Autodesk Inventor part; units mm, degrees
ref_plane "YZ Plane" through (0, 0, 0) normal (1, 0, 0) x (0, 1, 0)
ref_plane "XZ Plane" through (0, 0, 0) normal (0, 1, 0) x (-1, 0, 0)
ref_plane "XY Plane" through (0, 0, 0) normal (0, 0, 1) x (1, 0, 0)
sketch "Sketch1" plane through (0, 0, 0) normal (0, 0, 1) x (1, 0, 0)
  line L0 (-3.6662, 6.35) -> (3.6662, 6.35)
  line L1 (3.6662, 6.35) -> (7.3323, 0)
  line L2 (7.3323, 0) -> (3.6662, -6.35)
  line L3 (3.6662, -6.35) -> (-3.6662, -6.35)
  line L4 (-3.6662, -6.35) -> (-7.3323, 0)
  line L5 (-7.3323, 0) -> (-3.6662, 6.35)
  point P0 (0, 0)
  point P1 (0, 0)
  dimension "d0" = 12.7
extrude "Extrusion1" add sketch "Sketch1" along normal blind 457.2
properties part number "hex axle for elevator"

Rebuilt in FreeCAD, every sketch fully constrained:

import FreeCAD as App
import Part
import Sketcher
Q = App.Units.Quantity

doc = App.newDocument("Part")
body = doc.addObject("PartDesign::Body", "Body")

# Sketch on XY plane
sketch1 = body.newObject("Sketcher::SketchObject", "Sketch")
sketch1.AttachmentSupport = (doc.getObject("XY_Plane"), [""])
sketch1.MapMode = "FlatFace"
sketch1.addGeometry(Part.LineSegment(App.Vector(4, 6, 0), App.Vector(-4, 6, 0)), False)
sketch1.addGeometry(Part.LineSegment(App.Vector(-4, 6, 0), App.Vector(-7, 0, 0)), False)
sketch1.addGeometry(Part.LineSegment(App.Vector(-7, 0, 0), App.Vector(-4, -6, 0)), False)
sketch1.addGeometry(Part.LineSegment(App.Vector(-4, -6, 0), App.Vector(4, -6, 0)), False)
sketch1.addGeometry(Part.LineSegment(App.Vector(4, -6, 0), App.Vector(7, 0, 0)), False)
sketch1.addGeometry(Part.LineSegment(App.Vector(7, 0, 0), App.Vector(4, 6, 0)), False)
sketch1.addConstraint(Sketcher.Constraint("Coincident", 0, 2, 1, 1))
sketch1.addConstraint(Sketcher.Constraint("Coincident", 1, 2, 2, 1))
sketch1.addConstraint(Sketcher.Constraint("Coincident", 2, 2, 3, 1))
sketch1.addConstraint(Sketcher.Constraint("Coincident", 3, 2, 4, 1))
sketch1.addConstraint(Sketcher.Constraint("Coincident", 4, 2, 5, 1))
sketch1.addConstraint(Sketcher.Constraint("Coincident", 5, 2, 0, 1))
sketch1.addConstraint(Sketcher.Constraint("Horizontal", 0))
sketch1.addConstraint(Sketcher.Constraint("Horizontal", 3))
sketch1.addConstraint(Sketcher.Constraint("Symmetric", 0, 2, 3, 2, -1, 1))
sketch1.addConstraint(Sketcher.Constraint("Symmetric", 1, 2, 4, 2, -1, 1))
sketch1.addConstraint(Sketcher.Constraint("PointOnObject", 1, 2, -1))
sketch1.addConstraint(Sketcher.Constraint("Parallel", 2, 5))
sketch1.addConstraint(Sketcher.Constraint("Vertical", 0, 2, 2, 2))
sketch1.addConstraint(Sketcher.Constraint("DistanceY", 2, 2, 0, 2, Q("0.5 in")))
sketch1.addConstraint(Sketcher.Constraint("Angle", 1, Q("-119.9995 deg")))
sketch1.addConstraint(Sketcher.Constraint("DistanceX", 1, 2, 3, 2, Q("0.433 in")))
pad1 = body.newObject("PartDesign::Pad", "Pad")
pad1.Profile = sketch1
pad1.Length = Q("18 in")

doc.recompute()
